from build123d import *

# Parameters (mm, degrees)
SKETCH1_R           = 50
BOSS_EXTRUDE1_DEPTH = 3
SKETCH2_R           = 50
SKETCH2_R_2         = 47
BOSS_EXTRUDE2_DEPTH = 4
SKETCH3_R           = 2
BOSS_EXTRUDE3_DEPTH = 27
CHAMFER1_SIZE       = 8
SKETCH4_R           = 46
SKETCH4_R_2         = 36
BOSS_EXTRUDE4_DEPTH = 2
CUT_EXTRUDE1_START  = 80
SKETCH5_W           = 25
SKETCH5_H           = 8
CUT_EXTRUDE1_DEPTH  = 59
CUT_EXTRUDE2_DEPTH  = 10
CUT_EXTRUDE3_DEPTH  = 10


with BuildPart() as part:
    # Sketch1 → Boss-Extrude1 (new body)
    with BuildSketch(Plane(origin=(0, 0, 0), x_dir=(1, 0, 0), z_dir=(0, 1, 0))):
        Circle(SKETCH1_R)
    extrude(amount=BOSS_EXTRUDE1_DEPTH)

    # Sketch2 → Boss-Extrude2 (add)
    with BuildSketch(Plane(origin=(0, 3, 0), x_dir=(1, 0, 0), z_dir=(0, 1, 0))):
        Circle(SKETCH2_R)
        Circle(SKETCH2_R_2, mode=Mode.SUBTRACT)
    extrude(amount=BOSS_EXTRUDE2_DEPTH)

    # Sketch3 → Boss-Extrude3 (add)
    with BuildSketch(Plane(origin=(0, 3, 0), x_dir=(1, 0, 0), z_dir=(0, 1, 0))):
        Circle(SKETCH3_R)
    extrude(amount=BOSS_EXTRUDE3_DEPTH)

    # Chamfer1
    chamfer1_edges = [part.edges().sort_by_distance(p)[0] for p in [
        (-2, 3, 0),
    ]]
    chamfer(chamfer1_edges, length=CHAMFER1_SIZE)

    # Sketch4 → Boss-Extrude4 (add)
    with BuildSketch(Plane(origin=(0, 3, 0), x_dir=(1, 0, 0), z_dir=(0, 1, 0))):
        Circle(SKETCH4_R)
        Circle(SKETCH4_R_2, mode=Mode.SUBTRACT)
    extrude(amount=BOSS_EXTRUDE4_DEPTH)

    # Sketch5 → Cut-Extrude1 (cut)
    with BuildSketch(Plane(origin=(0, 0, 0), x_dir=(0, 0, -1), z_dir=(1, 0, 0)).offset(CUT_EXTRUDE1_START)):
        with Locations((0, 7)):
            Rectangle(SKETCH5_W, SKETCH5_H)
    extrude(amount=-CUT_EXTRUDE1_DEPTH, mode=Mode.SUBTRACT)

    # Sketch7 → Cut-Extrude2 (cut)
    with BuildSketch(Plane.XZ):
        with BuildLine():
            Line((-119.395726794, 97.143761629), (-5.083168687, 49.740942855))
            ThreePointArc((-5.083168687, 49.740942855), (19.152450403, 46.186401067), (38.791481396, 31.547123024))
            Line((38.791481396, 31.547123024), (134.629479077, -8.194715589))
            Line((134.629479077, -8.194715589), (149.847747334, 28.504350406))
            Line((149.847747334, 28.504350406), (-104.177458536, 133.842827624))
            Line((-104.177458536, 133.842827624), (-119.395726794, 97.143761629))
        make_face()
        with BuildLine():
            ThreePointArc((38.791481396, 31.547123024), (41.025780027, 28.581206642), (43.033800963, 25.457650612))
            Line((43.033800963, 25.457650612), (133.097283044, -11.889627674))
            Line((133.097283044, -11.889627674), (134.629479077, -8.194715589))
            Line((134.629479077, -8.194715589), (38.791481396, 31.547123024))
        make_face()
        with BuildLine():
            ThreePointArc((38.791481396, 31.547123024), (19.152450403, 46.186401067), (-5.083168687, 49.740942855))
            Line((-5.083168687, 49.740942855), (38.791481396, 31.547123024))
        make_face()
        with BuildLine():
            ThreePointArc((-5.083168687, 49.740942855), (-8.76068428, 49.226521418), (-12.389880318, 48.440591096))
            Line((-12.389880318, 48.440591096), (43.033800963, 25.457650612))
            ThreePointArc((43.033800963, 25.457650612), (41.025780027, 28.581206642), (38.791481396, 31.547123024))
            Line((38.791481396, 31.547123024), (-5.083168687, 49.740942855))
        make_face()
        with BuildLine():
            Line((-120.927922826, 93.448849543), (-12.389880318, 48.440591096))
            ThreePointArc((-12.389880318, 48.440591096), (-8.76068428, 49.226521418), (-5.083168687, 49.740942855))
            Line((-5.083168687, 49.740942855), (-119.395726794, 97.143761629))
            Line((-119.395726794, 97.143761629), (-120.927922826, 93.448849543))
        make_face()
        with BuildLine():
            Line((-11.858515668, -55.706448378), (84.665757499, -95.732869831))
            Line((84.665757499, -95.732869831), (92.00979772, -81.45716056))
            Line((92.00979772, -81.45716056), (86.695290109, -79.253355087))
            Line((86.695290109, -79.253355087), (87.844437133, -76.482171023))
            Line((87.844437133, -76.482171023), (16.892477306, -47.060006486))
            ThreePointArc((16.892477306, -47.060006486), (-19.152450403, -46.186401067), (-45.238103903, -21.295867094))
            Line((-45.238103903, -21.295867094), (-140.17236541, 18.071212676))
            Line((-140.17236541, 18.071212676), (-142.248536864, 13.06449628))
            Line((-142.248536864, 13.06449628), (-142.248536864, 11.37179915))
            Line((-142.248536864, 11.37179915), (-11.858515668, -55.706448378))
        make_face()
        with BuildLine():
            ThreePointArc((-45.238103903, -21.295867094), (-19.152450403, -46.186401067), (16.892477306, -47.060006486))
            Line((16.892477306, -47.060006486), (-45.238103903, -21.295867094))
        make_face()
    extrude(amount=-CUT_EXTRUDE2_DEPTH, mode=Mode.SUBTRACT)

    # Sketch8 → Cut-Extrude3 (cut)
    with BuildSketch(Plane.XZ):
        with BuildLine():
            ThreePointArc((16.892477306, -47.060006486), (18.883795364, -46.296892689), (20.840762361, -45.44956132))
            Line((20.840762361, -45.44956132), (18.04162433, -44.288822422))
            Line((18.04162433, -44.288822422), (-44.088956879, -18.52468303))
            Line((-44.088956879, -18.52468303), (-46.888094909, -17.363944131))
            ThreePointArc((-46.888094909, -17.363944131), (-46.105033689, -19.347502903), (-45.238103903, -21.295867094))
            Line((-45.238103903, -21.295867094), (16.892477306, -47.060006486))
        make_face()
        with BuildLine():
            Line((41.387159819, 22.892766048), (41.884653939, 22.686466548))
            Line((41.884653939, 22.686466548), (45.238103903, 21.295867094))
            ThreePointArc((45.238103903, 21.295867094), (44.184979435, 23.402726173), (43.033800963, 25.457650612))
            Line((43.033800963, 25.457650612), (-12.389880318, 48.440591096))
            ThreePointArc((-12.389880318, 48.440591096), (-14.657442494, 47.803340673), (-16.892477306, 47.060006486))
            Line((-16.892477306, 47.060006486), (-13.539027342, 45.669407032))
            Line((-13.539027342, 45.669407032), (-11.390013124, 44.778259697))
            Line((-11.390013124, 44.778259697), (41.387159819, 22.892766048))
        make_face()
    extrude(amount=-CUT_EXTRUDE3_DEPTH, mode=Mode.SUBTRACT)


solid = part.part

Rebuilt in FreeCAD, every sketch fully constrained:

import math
import FreeCAD as App
import Part
import Sketcher
Q = App.Units.Quantity


def edges_at(feature, points):
    """Names of the edges that pass closest to the given points."""
    edges = feature.Shape.Edges
    near = lambda p: min(range(len(edges)), key=lambda i: edges[i].distToShape(Part.Vertex(*p))[0])
    return sorted({f"Edge{near(p) + 1}" for p in points})


def add_polygon(sketch, points):
    """Adds a closed chain of lines whose ends are joined by coincident constraints."""
    first, n = sketch.GeometryCount, len(points)
    for a, b in zip(points, points[1:] + points[:1]):
        sketch.addGeometry(Part.LineSegment(App.Vector(*a, 0), App.Vector(*b, 0)), False)
    for i in range(n):
        sketch.addConstraint(Sketcher.Constraint("Coincident", first + i, 2, first + (i + 1) % n, 1))

doc = App.newDocument("Part")
params = doc.addObject("Spreadsheet::Sheet", "Params")
for row, (alias, value) in enumerate([
    ("sketch1_diameter", "100 mm"),
    ("pad1_length", "3 mm"),
    ("sketch2_diameter", "100 mm"),
    ("sketch2_diameter2", "94 mm"),
    ("pad2_length", "4 mm"),
    ("sketch3_diameter", "4 mm"),
    ("pad3_length", "27 mm"),
    ("chamfer_size", "8 mm"),
    ("sketch4_diameter", "92 mm"),
    ("sketch4_diameter2", "72 mm"),
    ("pad4_length", "2 mm"),
    ("sketch5_width", "8 mm"),
    ("sketch5_height", "25 mm"),
    ("pocket1_length", "59 mm"),
    ("sketch6_length", "60 mm"),
    ("sketch6_length2", "4 mm"),
    ("sketch6_length3", "275 mm"),
    ("sketch6_length4", "3 mm"),
    ("sketch6_length5", "97.5 mm"),
    ("pocket2_length", "10 mm"),
    ("sketch7_radius", "50 mm"),
    ("sketch7_length", "60 mm"),
    ("pocket3_length", "10 mm"),
], start=1):
    params.set(f"A{row}", alias)
    params.set(f"B{row}", "=" + value)
    params.setAlias(f"B{row}", alias)

body = doc.addObject("PartDesign::Body", "Body")

# Sketch on XZ plane
sketch1 = doc.addObject("Sketcher::SketchObject", "Sketch")
body.addObject(sketch1)
sketch1.AttachmentSupport = (doc.XZ_Plane, [""])
sketch1.MapMode = "FlatFace"
sketch1.addGeometry(Part.Circle(App.Vector(0, 0, 0), App.Vector(0, 0, 1), 50), False)
sketch1.addConstraint([
    Sketcher.Constraint("Coincident", 0, 3, -1, 1),
    Sketcher.Constraint("Diameter", 0, Q("100 mm")),
])
sketch1.setExpression("Constraints[1]", "Params.sketch1_diameter")
pad1 = doc.addObject("PartDesign::Pad", "Pad")
body.addObject(pad1)
pad1.Profile = sketch1
pad1.setExpression("Length", "Params.pad1_length")
pad1.Reversed = True

# Sketch on XZ plane
sketch2 = doc.addObject("Sketcher::SketchObject", "Sketch001")
body.addObject(sketch2)
sketch2.AttachmentSupport = (doc.XZ_Plane, [""])
sketch2.MapMode = "FlatFace"
sketch2.AttachmentOffset = App.Placement(App.Vector(0, 0, -3), App.Rotation())
sketch2.addGeometry([
    Part.Circle(App.Vector(0, 0, 0), App.Vector(0, 0, 1), 50),
    Part.Circle(App.Vector(0, 0, 0), App.Vector(0, 0, 1), 47),
], False)
sketch2.addConstraint([
    Sketcher.Constraint("Coincident", 0, 3, -1, 1),
    Sketcher.Constraint("Coincident", 1, 3, -1, 1),
    Sketcher.Constraint("Diameter", 0, Q("100 mm")),
    Sketcher.Constraint("Diameter", 1, Q("94 mm")),
])
sketch2.setExpression("Constraints[2]", "Params.sketch2_diameter")
sketch2.setExpression("Constraints[3]", "Params.sketch2_diameter2")
pad2 = doc.addObject("PartDesign::Pad", "Pad001")
body.addObject(pad2)
pad2.Profile = sketch2
pad2.setExpression("Length", "Params.pad2_length")
pad2.Reversed = True

# Sketch on XZ plane
sketch3 = doc.addObject("Sketcher::SketchObject", "Sketch002")
body.addObject(sketch3)
sketch3.AttachmentSupport = (doc.XZ_Plane, [""])
sketch3.MapMode = "FlatFace"
sketch3.AttachmentOffset = App.Placement(App.Vector(0, 0, -3), App.Rotation())
sketch3.addGeometry(Part.Circle(App.Vector(0, 0, 0), App.Vector(0, 0, 1), 2), False)
sketch3.addConstraint([
    Sketcher.Constraint("Coincident", 0, 3, -1, 1),
    Sketcher.Constraint("Diameter", 0, Q("4 mm")),
])
sketch3.setExpression("Constraints[1]", "Params.sketch3_diameter")
pad3 = doc.addObject("PartDesign::Pad", "Pad002")
body.addObject(pad3)
pad3.Profile = sketch3
pad3.setExpression("Length", "Params.pad3_length")
pad3.Reversed = True
doc.recompute()

chamfer = doc.addObject("PartDesign::Chamfer", "Chamfer")
body.addObject(chamfer)
chamfer.Base = (pad3, edges_at(pad3, [(-2, 3, 0)]))
chamfer.setExpression("Size", "Params.chamfer_size")

# Sketch on XZ plane
sketch4 = doc.addObject("Sketcher::SketchObject", "Sketch003")
body.addObject(sketch4)
sketch4.AttachmentSupport = (doc.XZ_Plane, [""])
sketch4.MapMode = "FlatFace"
sketch4.AttachmentOffset = App.Placement(App.Vector(0, 0, -3), App.Rotation())
sketch4.addGeometry([
    Part.Circle(App.Vector(0, 0, 0), App.Vector(0, 0, 1), 46),
    Part.Circle(App.Vector(0, 0, 0), App.Vector(0, 0, 1), 36),
], False)
sketch4.addConstraint([
    Sketcher.Constraint("Coincident", 0, 3, -1, 1),
    Sketcher.Constraint("Coincident", 1, 3, -1, 1),
    Sketcher.Constraint("Diameter", 0, Q("92 mm")),
    Sketcher.Constraint("Diameter", 1, Q("72 mm")),
])
sketch4.setExpression("Constraints[2]", "Params.sketch4_diameter")
sketch4.setExpression("Constraints[3]", "Params.sketch4_diameter2")
pad4 = doc.addObject("PartDesign::Pad", "Pad003")
body.addObject(pad4)
pad4.Profile = sketch4
pad4.setExpression("Length", "Params.pad4_length")
pad4.Reversed = True

# Sketch on YZ plane
sketch5 = doc.addObject("Sketcher::SketchObject", "Sketch004")
body.addObject(sketch5)
sketch5.AttachmentSupport = (doc.YZ_Plane, [""])
sketch5.MapMode = "FlatFace"
sketch5.AttachmentOffset = App.Placement(App.Vector(0, 0, 80), App.Rotation())
add_polygon(sketch5, [(11, 12.5), (3, 12.5), (3, -12.5), (11, -12.5)])  # lines 0-3
sketch5.addConstraint([
    Sketcher.Constraint("Horizontal", 0),
    Sketcher.Constraint("Vertical", 1),
    Sketcher.Constraint("Horizontal", 2),
    Sketcher.Constraint("Vertical", 3),
    Sketcher.Constraint("DistanceX", 0, 2, 0, 1, Q("8 mm")),
    Sketcher.Constraint("DistanceY", 1, 2, 1, 1, Q("25 mm")),
    Sketcher.Constraint("DistanceX", -1, 1, 0, 2, Q("3 mm")),
    Sketcher.Constraint("DistanceY", -1, 1, 0, 2, Q("12.5 mm")),
])
sketch5.setExpression("Constraints[8]", "Params.sketch5_width")
sketch5.setExpression("Constraints[9]", "Params.sketch5_height")
pocket1 = doc.addObject("PartDesign::Pocket", "Pocket")
body.addObject(pocket1)
pocket1.Profile = sketch5
pocket1.setExpression("Length", "Params.pocket1_length")

# Sketch on XZ plane
sketch6 = doc.addObject("Sketcher::SketchObject", "Sketch005")
body.addObject(sketch6)
sketch6.AttachmentSupport = (doc.XZ_Plane, [""])
sketch6.MapMode = "FlatFace"
add_polygon(sketch6, [(-12.38988, 48.440591), (43.033801, 25.457651), (133.097283, -11.889628), (134.629479, -8.194716), (149.847747, 28.50435), (-104.177459, 133.842828), (-119.395727, 97.143762), (-120.927923, 93.44885)])  # lines 0-7
add_polygon(sketch6, [(-11.858516, -55.706448), (84.665757, -95.73287), (92.009798, -81.457161), (86.69529, -79.253355), (87.844437, -76.482171), (16.892477, -47.060006), (-45.238104, -21.295867), (-140.172365, 18.071213), (-142.248537, 13.064496), (-142.248537, 11.371799)])  # lines 8-17
sketch6.addConstraint([
    Sketcher.Constraint("Vertical", 16),
    Sketcher.Constraint("Parallel", 0, 1),
    Sketcher.Constraint("Perpendicular", 1, 2),
    Sketcher.Constraint("Parallel", 2, 3),
    Sketcher.Constraint("Perpendicular", 3, 4),
    Sketcher.Constraint("Perpendicular", 4, 5),
    Sketcher.Constraint("Parallel", 5, 6),
    Sketcher.Constraint("Perpendicular", 6, 7),
    Sketcher.Constraint("Parallel", 7, 8),
    Sketcher.Constraint("Parallel", 8, 10),
    Sketcher.Constraint("Perpendicular", 10, 11),
    Sketcher.Constraint("Perpendicular", 11, 12),
    Sketcher.Constraint("Parallel", 12, 13),
    Sketcher.Constraint("Parallel", 13, 14),
    Sketcher.Constraint("Perpendicular", 14, 15),
    Sketcher.Constraint("Perpendicular", 9, 17),
    Sketcher.Constraint("Equal", 3, 5),
    Sketcher.Constraint("Distance", 0, Q("60 mm")),
    Sketcher.Constraint("Distance", 2, Q("4 mm")),
    Sketcher.Constraint("Distance", 4, Q("275 mm")),
    Sketcher.Constraint("Distance", 11, Q("3 mm")),
    Sketcher.Constraint("Distance", 1, Q("97.5 mm")),
    Sketcher.Constraint("Distance", 3, Q("39.729298 mm")),
    Sketcher.Constraint("DistanceX", -1, 1, 0, 2, Q("43.033801 mm")),
    Sketcher.Constraint("DistanceY", -1, 1, 16, 2, Q("11.371799 mm")),
    Sketcher.Constraint("DistanceY", 0, 2, 3, 2, Q("3.0467 mm")),
    Sketcher.Constraint("DistanceY", 8, 2, 11, 2, Q("19.250699 mm")),
    Sketcher.Constraint("DistanceY", 17, 2, 0, 2, Q("81.164099 mm")),
    Sketcher.Constraint("Distance", 14, Q("102.772958 mm")),
    Sketcher.Constraint("Distance", 15, Q("5.42012 mm")),
    Sketcher.Constraint("Distance", 17, Q("146.63236 mm")),
    Sketcher.Constraint("DistanceY", 16, 2, 16, 1, Q("1.692697 mm")),
    Sketcher.Constraint("DistanceY", -1, 1, 0, 2, Q("25.457651 mm")),
    Sketcher.Constraint("DistanceY", 8, 2, -1, 1, Q("95.73287 mm")),
    Sketcher.Constraint("DistanceX", -1, 1, 10, 2, Q("86.69529 mm")),
    Sketcher.Constraint("DistanceX", 12, 2, 11, 2, Q("70.95196 mm")),
])
sketch6.setExpression("Constraints[35]", "Params.sketch6_length")
sketch6.setExpression("Constraints[36]", "Params.sketch6_length2")
sketch6.setExpression("Constraints[37]", "Params.sketch6_length3")
sketch6.setExpression("Constraints[38]", "Params.sketch6_length4")
sketch6.setExpression("Constraints[39]", "Params.sketch6_length5")
pocket2 = doc.addObject("PartDesign::Pocket", "Pocket001")
body.addObject(pocket2)
pocket2.Profile = sketch6
pocket2.setExpression("Length", "Params.pocket2_length")

# Sketch on XZ plane
sketch7 = doc.addObject("Sketcher::SketchObject", "Sketch006")
body.addObject(sketch7)
sketch7.AttachmentSupport = (doc.XZ_Plane, [""])
sketch7.MapMode = "FlatFace"
sketch7.addGeometry([
    Part.ArcOfCircle(Part.Circle(App.Vector(0, 0, 0), App.Vector(0, 0, 1), 50), math.radians(-70.254089), math.radians(-65.366317)),  # 0
    Part.LineSegment(App.Vector(20.840762, -45.449561, 0), App.Vector(18.041624, -44.288822, 0)),  # 1
    Part.LineSegment(App.Vector(18.041624, -44.288822, 0), App.Vector(-44.088957, -18.524683, 0)),  # 2
    Part.LineSegment(App.Vector(-44.088957, -18.524683, 0), App.Vector(-46.888095, -17.363944, 0)),  # 3
    Part.ArcOfCircle(Part.Circle(App.Vector(0, 0, 0), App.Vector(0, 0, 1), 50), math.radians(-159.679031), math.radians(-154.791258)),  # 4
    Part.LineSegment(App.Vector(-45.238104, -21.295867, 0), App.Vector(16.892477, -47.060006, 0)),  # 5
    Part.LineSegment(App.Vector(41.38716, 22.892766, 0), App.Vector(41.884654, 22.686467, 0)),  # 6
    Part.LineSegment(App.Vector(41.884654, 22.686467, 0), App.Vector(45.238104, 21.295867, 0)),  # 7
    Part.ArcOfCircle(Part.Circle(App.Vector(0, 0, 0), App.Vector(0, 0, 1), 50), math.radians(25.208742), math.radians(30.607429)),  # 8
    Part.LineSegment(App.Vector(43.033801, 25.457651, 0), App.Vector(-12.38988, 48.440591, 0)),  # 9
    Part.ArcOfCircle(Part.Circle(App.Vector(0, 0, 0), App.Vector(0, 0, 1), 50), math.radians(104.347224), math.radians(109.745911)),  # 10
    Part.LineSegment(App.Vector(-16.892477, 47.060006, 0), App.Vector(-13.539027, 45.669407, 0)),  # 11
    Part.LineSegment(App.Vector(-13.539027, 45.669407, 0), App.Vector(-11.390013, 44.77826, 0)),  # 12
    Part.LineSegment(App.Vector(-11.390013, 44.77826, 0), App.Vector(41.38716, 22.892766, 0)),  # 13
], False)
sketch7.addConstraint([
    Sketcher.Constraint("Coincident", 0, 2, 1, 1),
    Sketcher.Constraint("Coincident", 1, 2, 2, 1),
    Sketcher.Constraint("Coincident", 2, 2, 3, 1),
    Sketcher.Constraint("Coincident", 3, 2, 4, 1),
    Sketcher.Constraint("Coincident", 4, 2, 5, 1),
    Sketcher.Constraint("Coincident", 5, 2, 0, 1),
    Sketcher.Constraint("Coincident", 6, 2, 7, 1),
    Sketcher.Constraint("Coincident", 7, 2, 8, 1),
    Sketcher.Constraint("Coincident", 8, 2, 9, 1),
    Sketcher.Constraint("Coincident", 9, 2, 10, 1),
    Sketcher.Constraint("Coincident", 10, 2, 11, 1),
    Sketcher.Constraint("Coincident", 11, 2, 12, 1),
    Sketcher.Constraint("Coincident", 12, 2, 13, 1),
    Sketcher.Constraint("Coincident", 13, 2, 6, 1),
    Sketcher.Constraint("Coincident", 0, 3, -1, 1),
    Sketcher.Constraint("Coincident", 4, 3, -1, 1),
    Sketcher.Constraint("Coincident", 8, 3, -1, 1),
    Sketcher.Constraint("Coincident", 10, 3, -1, 1),
    Sketcher.Constraint("Equal", 0, 4),
    Sketcher.Constraint("Equal", 4, 8),
    Sketcher.Constraint("Equal", 8, 10),
    Sketcher.Constraint("Parallel", 1, 2),
    Sketcher.Constraint("Parallel", 2, 3),
    Sketcher.Constraint("Parallel", 3, 5),
    Sketcher.Constraint("Parallel", 5, 6),
    Sketcher.Constraint("Parallel", 6, 7),
    Sketcher.Constraint("Parallel", 7, 9),
    Sketcher.Constraint("Parallel", 9, 11),
    Sketcher.Constraint("Parallel", 11, 12),
    Sketcher.Constraint("Parallel", 12, 13),
    Sketcher.Constraint("Equal", 1, 3),
    Sketcher.Constraint("Equal", 2, 5),
    Sketcher.Constraint("Equal", 7, 11),
    Sketcher.Constraint("Radius", 0, Q("50 mm")),
    Sketcher.Constraint("Distance", 9, Q("60 mm")),
    Sketcher.Constraint("DistanceX", -1, 1, 8, 2, Q("43.033801 mm")),
    Sketcher.Constraint("DistanceY", 7, 2, 6, 2, Q("1.390599 mm")),
    Sketcher.Constraint("DistanceY", 6, 2, 13, 2, Q("0.2063 mm")),
    Sketcher.Constraint("Distance", 13, Q("57.13497 mm")),
    Sketcher.Constraint("DistanceY", 0, 2, -1, 1, Q("45.449561 mm")),
    Sketcher.Constraint("DistanceY", -1, 1, 12, 2, Q("44.77826 mm")),
    Sketcher.Constraint("DistanceX", 1, 2, 0, 2, Q("2.799138 mm")),
])
sketch7.setExpression("Constraints[33]", "Params.sketch7_radius")
sketch7.setExpression("Constraints[34]", "Params.sketch7_length")
pocket3 = doc.addObject("PartDesign::Pocket", "Pocket002")
body.addObject(pocket3)
pocket3.Profile = sketch7
pocket3.setExpression("Length", "Params.pocket3_length")

doc.recompute()
